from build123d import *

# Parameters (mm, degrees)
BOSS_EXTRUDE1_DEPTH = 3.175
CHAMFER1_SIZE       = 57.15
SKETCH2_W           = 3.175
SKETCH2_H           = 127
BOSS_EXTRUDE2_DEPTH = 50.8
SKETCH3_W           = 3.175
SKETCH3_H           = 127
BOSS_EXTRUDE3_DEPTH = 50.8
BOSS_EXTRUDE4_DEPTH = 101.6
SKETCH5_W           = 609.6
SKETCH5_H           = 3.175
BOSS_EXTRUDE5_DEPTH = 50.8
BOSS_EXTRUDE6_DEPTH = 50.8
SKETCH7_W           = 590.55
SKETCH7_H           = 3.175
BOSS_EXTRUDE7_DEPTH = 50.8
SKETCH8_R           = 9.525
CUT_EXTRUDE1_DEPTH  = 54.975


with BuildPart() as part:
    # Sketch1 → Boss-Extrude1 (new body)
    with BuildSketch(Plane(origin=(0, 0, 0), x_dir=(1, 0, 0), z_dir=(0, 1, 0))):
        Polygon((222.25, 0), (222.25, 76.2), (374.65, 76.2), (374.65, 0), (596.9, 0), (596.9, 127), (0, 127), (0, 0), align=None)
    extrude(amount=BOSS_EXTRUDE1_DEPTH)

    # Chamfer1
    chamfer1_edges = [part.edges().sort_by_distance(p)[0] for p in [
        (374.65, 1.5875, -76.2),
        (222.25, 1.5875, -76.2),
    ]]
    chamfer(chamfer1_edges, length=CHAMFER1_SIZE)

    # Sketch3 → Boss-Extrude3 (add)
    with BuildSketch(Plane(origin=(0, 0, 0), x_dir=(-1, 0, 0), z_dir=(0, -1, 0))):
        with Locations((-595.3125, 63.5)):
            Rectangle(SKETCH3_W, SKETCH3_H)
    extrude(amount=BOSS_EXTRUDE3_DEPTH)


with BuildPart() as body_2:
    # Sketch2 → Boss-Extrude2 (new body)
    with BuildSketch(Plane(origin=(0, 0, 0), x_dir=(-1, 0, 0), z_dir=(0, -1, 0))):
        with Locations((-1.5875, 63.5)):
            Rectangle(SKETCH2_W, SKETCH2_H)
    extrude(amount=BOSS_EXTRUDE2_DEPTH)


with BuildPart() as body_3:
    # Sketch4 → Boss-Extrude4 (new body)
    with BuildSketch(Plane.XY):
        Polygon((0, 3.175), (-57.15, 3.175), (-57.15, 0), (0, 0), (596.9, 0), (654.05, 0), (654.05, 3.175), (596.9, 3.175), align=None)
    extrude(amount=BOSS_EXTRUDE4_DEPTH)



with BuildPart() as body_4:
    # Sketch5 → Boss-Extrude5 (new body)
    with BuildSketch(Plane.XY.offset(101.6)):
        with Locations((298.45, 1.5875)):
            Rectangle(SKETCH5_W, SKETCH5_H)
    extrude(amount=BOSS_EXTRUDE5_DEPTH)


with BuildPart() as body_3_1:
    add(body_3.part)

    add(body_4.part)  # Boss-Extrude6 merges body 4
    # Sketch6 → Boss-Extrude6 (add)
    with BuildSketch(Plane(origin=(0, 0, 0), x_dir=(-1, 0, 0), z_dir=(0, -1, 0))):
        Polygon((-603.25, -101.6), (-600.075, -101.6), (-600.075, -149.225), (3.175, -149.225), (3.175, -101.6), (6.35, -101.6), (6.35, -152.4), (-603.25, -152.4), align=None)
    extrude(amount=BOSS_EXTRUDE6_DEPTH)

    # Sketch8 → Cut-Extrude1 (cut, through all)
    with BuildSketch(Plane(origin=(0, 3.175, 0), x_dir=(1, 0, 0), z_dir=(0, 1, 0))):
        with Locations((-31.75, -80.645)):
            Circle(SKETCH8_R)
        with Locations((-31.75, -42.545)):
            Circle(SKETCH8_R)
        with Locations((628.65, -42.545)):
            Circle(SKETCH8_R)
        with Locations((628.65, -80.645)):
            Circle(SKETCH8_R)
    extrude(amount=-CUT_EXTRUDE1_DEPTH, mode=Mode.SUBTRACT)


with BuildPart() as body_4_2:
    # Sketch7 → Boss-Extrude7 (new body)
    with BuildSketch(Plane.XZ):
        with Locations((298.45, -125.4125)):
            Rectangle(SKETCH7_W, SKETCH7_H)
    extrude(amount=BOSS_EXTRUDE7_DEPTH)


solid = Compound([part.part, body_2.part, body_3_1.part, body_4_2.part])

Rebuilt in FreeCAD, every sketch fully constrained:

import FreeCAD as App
import Part
import Sketcher
Q = App.Units.Quantity


def edges_at(feature, points):
    """Names of the edges that pass closest to the given points."""
    edges = feature.Shape.Edges
    near = lambda p: min(range(len(edges)), key=lambda i: edges[i].distToShape(Part.Vertex(*p))[0])
    return sorted({f"Edge{near(p) + 1}" for p in points})

doc = App.newDocument("Part")
body = doc.addObject("PartDesign::Body", "Body")

# Sketch on XZ plane
sketch1 = body.newObject("Sketcher::SketchObject", "Sketch")
sketch1.AttachmentSupport = (doc.getObject("XZ_Plane"), [""])
sketch1.MapMode = "FlatFace"
sketch1.addGeometry([
    Part.LineSegment(App.Vector(222, 0, 0), App.Vector(222, -76, 0)),  # 0
    Part.LineSegment(App.Vector(222, -76, 0), App.Vector(375, -76, 0)),  # 1
    Part.LineSegment(App.Vector(375, -76, 0), App.Vector(375, 0, 0)),  # 2
    Part.LineSegment(App.Vector(375, 0, 0), App.Vector(597, 0, 0)),  # 3
    Part.LineSegment(App.Vector(597, 0, 0), App.Vector(597, -127, 0)),  # 4
    Part.LineSegment(App.Vector(597, -127, 0), App.Vector(0, -127, 0)),  # 5
    Part.LineSegment(App.Vector(0, -127, 0), App.Vector(0, 0, 0)),  # 6
    Part.LineSegment(App.Vector(0, 0, 0), App.Vector(222, 0, 0)),  # 7
], False)
sketch1.addConstraint([
    Sketcher.Constraint("Coincident", 0, 2, 1, 1),
    Sketcher.Constraint("Coincident", 1, 2, 2, 1),
    Sketcher.Constraint("Coincident", 2, 2, 3, 1),
    Sketcher.Constraint("Coincident", 3, 2, 4, 1),
    Sketcher.Constraint("Coincident", 4, 2, 5, 1),
    Sketcher.Constraint("Coincident", 5, 2, 6, 1),
    Sketcher.Constraint("Coincident", 6, 2, 7, 1),
    Sketcher.Constraint("Coincident", 7, 2, 0, 1),
    Sketcher.Constraint("Vertical", 0),
    Sketcher.Constraint("Horizontal", 1),
    Sketcher.Constraint("Vertical", 2),
    Sketcher.Constraint("Horizontal", 3),
    Sketcher.Constraint("Vertical", 4),
    Sketcher.Constraint("Horizontal", 5),
    Sketcher.Constraint("Vertical", 6),
    Sketcher.Constraint("Horizontal", 7),
    Sketcher.Constraint("Coincident", 6, 2, -1, 1),
    Sketcher.Constraint("PointOnObject", 2, 2, -1),
    Sketcher.Constraint("Equal", 3, 7),
    Sketcher.Constraint("DistanceX", 1, 1, 1, 2, Q("6 in")),
    Sketcher.Constraint("DistanceY", 0, 2, 0, 1, Q("3 in")),
    Sketcher.Constraint("DistanceY", 4, 2, 4, 1, Q("5 in")),
    Sketcher.Constraint("DistanceX", 5, 2, 5, 1, Q("23.5 in")),
])
pad1 = body.newObject("PartDesign::Pad", "Pad")
pad1.Profile = sketch1
pad1.Length = Q("0.125 in")
pad1.Reversed = True
doc.recompute()

chamfer = body.newObject("PartDesign::Chamfer", "Chamfer")
chamfer.Base = (pad1, edges_at(pad1, [(374.65, 1.587, -76.2), (222.25, 1.587, -76.2)]))
chamfer.Size = Q("2.25 in")

# Sketch on XZ plane
sketch2 = body.newObject("Sketcher::SketchObject", "Sketch001")
sketch2.AttachmentSupport = (doc.getObject("XZ_Plane"), [""])
sketch2.MapMode = "FlatFace"
sketch2.addGeometry([
    Part.LineSegment(App.Vector(596.9, -127, 0), App.Vector(596.9, 0, 0)),
    Part.LineSegment(App.Vector(596.9, 0, 0), App.Vector(593.7, 0, 0)),
    Part.LineSegment(App.Vector(593.7, 0, 0), App.Vector(593.7, -127, 0)),
    Part.LineSegment(App.Vector(593.7, -127, 0), App.Vector(596.9, -127, 0)),
], False)
sketch2.addConstraint([
    Sketcher.Constraint("Coincident", 0, 2, 1, 1),
    Sketcher.Constraint("Coincident", 1, 2, 2, 1),
    Sketcher.Constraint("Coincident", 2, 2, 3, 1),
    Sketcher.Constraint("Coincident", 3, 2, 0, 1),
    Sketcher.Constraint("Vertical", 0),
    Sketcher.Constraint("Horizontal", 1),
    Sketcher.Constraint("Vertical", 2),
    Sketcher.Constraint("Horizontal", 3),
    Sketcher.Constraint("PointOnObject", 0, 2, -1),
    Sketcher.Constraint("DistanceY", 0, 1, 0, 2, Q("5 in")),
    Sketcher.Constraint("DistanceX", -1, 1, 0, 2, Q("23.5 in")),
    Sketcher.Constraint("DistanceX", 1, 2, 1, 1, Q("0.125 in")),
])
pad2 = body.newObject("PartDesign::Pad", "Pad001")
pad2.Profile = sketch2
pad2.Length = Q("2 in")
body2 = doc.addObject("PartDesign::Body", "Body001")

# Sketch on XZ plane
sketch3 = body2.newObject("Sketcher::SketchObject", "Sketch002")
sketch3.AttachmentSupport = (doc.getObject("XZ_Plane001"), [""])
sketch3.MapMode = "FlatFace"
sketch3.addGeometry([
    Part.LineSegment(App.Vector(3.2, -127, 0), App.Vector(3.2, 0, 0)),
    Part.LineSegment(App.Vector(3.2, 0, 0), App.Vector(0, 0, 0)),
    Part.LineSegment(App.Vector(0, 0, 0), App.Vector(0, -127, 0)),
    Part.LineSegment(App.Vector(0, -127, 0), App.Vector(3.2, -127, 0)),
], False)
sketch3.addConstraint([
    Sketcher.Constraint("Coincident", 0, 2, 1, 1),
    Sketcher.Constraint("Coincident", 1, 2, 2, 1),
    Sketcher.Constraint("Coincident", 2, 2, 3, 1),
    Sketcher.Constraint("Coincident", 3, 2, 0, 1),
    Sketcher.Constraint("Vertical", 0),
    Sketcher.Constraint("Horizontal", 1),
    Sketcher.Constraint("Vertical", 2),
    Sketcher.Constraint("Horizontal", 3),
    Sketcher.Constraint("Coincident", 1, 2, -1, 1),
    Sketcher.Constraint("DistanceY", 0, 1, 0, 2, Q("5 in")),
    Sketcher.Constraint("DistanceX", 1, 2, 1, 1, Q("0.125 in")),
])
pad3 = body2.newObject("PartDesign::Pad", "Pad002")
pad3.Profile = sketch3
pad3.Length = Q("2 in")
body3 = doc.addObject("PartDesign::Body", "Body002")

# Sketch on XY plane
sketch4 = body3.newObject("Sketcher::SketchObject", "Sketch003")
sketch4.AttachmentSupport = (doc.getObject("XY_Plane002"), [""])
sketch4.MapMode = "FlatFace"
sketch4.addGeometry([
    Part.LineSegment(App.Vector(-57.1, 3.2, 0), App.Vector(-57.1, 0, 0)),
    Part.LineSegment(App.Vector(-57.1, 0, 0), App.Vector(654, 0, 0)),
    Part.LineSegment(App.Vector(654, 0, 0), App.Vector(654, 3.2, 0)),
    Part.LineSegment(App.Vector(654, 3.2, 0), App.Vector(-57.1, 3.2, 0)),
], False)
sketch4.addConstraint([
    Sketcher.Constraint("Coincident", 0, 2, 1, 1),
    Sketcher.Constraint("Coincident", 1, 2, 2, 1),
    Sketcher.Constraint("Coincident", 2, 2, 3, 1),
    Sketcher.Constraint("Coincident", 3, 2, 0, 1),
    Sketcher.Constraint("Vertical", 0),
    Sketcher.Constraint("Horizontal", 1),
    Sketcher.Constraint("Vertical", 2),
    Sketcher.Constraint("Horizontal", 3),
    Sketcher.Constraint("PointOnObject", 0, 2, -1),
    Sketcher.Constraint("DistanceX", 1, 1, 1, 2, Q("28 in")),
    Sketcher.Constraint("DistanceY", 0, 2, 0, 1, Q("0.125 in")),
    Sketcher.Constraint("DistanceX", 0, 2, -1, 1, Q("2.25 in")),
])
pad4 = body3.newObject("PartDesign::Pad", "Pad003")
pad4.Profile = sketch4
pad4.Length = Q("4 in")
body4 = doc.addObject("PartDesign::Body", "Body003")

# Sketch on XY plane
sketch5 = body4.newObject("Sketcher::SketchObject", "Sketch004")
sketch5.AttachmentSupport = (doc.getObject("XY_Plane003"), [""])
sketch5.MapMode = "FlatFace"
sketch5.AttachmentOffset = App.Placement(App.Vector(0, 0, 4 * 25.4), App.Rotation())
sketch5.addGeometry([
    Part.LineSegment(App.Vector(-6.3, 3.2, 0), App.Vector(-6.3, 0, 0)),
    Part.LineSegment(App.Vector(-6.3, 0, 0), App.Vector(603.2, 0, 0)),
    Part.LineSegment(App.Vector(603.2, 0, 0), App.Vector(603.2, 3.2, 0)),
    Part.LineSegment(App.Vector(603.2, 3.2, 0), App.Vector(-6.3, 3.2, 0)),
], False)
sketch5.addConstraint([
    Sketcher.Constraint("Coincident", 0, 2, 1, 1),
    Sketcher.Constraint("Coincident", 1, 2, 2, 1),
    Sketcher.Constraint("Coincident", 2, 2, 3, 1),
    Sketcher.Constraint("Coincident", 3, 2, 0, 1),
    Sketcher.Constraint("Vertical", 0),
    Sketcher.Constraint("Horizontal", 1),
    Sketcher.Constraint("Vertical", 2),
    Sketcher.Constraint("Horizontal", 3),
    Sketcher.Constraint("PointOnObject", 0, 2, -1),
    Sketcher.Constraint("DistanceX", 1, 1, 1, 2, Q("24 in")),
    Sketcher.Constraint("DistanceY", 0, 2, 0, 1, Q("0.125 in")),
    Sketcher.Constraint("DistanceX", 0, 2, -1, 1, Q("0.25 in")),
])
pad5 = body4.newObject("PartDesign::Pad", "Pad004")
pad5.Profile = sketch5
pad5.Length = Q("2 in")
doc.recompute()

boolean = body3.newObject("PartDesign::Boolean", "Boolean")
boolean.Type = "Fuse"
boolean.addObjects([body4])

# Sketch on XZ plane
sketch6 = body3.newObject("Sketcher::SketchObject", "Sketch005")
sketch6.AttachmentSupport = (doc.getObject("XZ_Plane002"), [""])
sketch6.MapMode = "FlatFace"
sketch6.addGeometry([
    Part.LineSegment(App.Vector(600.1, 101.6, 0), App.Vector(603.2, 101.6, 0)),  # 0
    Part.LineSegment(App.Vector(603.2, 101.6, 0), App.Vector(603.2, 152.4, 0)),  # 1
    Part.LineSegment(App.Vector(603.2, 152.4, 0), App.Vector(-6.3, 152.4, 0)),  # 2
    Part.LineSegment(App.Vector(-6.3, 152.4, 0), App.Vector(-6.3, 101.6, 0)),  # 3
    Part.LineSegment(App.Vector(-6.3, 101.6, 0), App.Vector(-3.2, 101.6, 0)),  # 4
    Part.LineSegment(App.Vector(-3.2, 101.6, 0), App.Vector(-3.2, 149.2, 0)),  # 5
    Part.LineSegment(App.Vector(-3.2, 149.2, 0), App.Vector(600.1, 149.2, 0)),  # 6
    Part.LineSegment(App.Vector(600.1, 149.2, 0), App.Vector(600.1, 101.6, 0)),  # 7
], False)
sketch6.addConstraint([
    Sketcher.Constraint("Coincident", 0, 2, 1, 1),
    Sketcher.Constraint("Coincident", 1, 2, 2, 1),
    Sketcher.Constraint("Coincident", 2, 2, 3, 1),
    Sketcher.Constraint("Coincident", 3, 2, 4, 1),
    Sketcher.Constraint("Coincident", 4, 2, 5, 1),
    Sketcher.Constraint("Coincident", 5, 2, 6, 1),
    Sketcher.Constraint("Coincident", 6, 2, 7, 1),
    Sketcher.Constraint("Coincident", 7, 2, 0, 1),
    Sketcher.Constraint("Horizontal", 0),
    Sketcher.Constraint("Vertical", 1),
    Sketcher.Constraint("Horizontal", 2),
    Sketcher.Constraint("Vertical", 3),
    Sketcher.Constraint("Horizontal", 4),
    Sketcher.Constraint("Vertical", 5),
    Sketcher.Constraint("Horizontal", 6),
    Sketcher.Constraint("Vertical", 7),
    Sketcher.Constraint("Horizontal", 0, 2, 3, 2),
    Sketcher.Constraint("Equal", 0, 4),
    Sketcher.Constraint("DistanceX", 2, 2, 2, 1, Q("24 in")),
    Sketcher.Constraint("DistanceY", 1, 1, 1, 2, Q("2 in")),
    Sketcher.Constraint("DistanceY", -1, 1, 0, 2, Q("4 in")),
    Sketcher.Constraint("DistanceX", 6, 1, 6, 2, Q("23.75 in")),
    Sketcher.Constraint("DistanceY", 5, 1, 5, 2, Q("1.875 in")),
    Sketcher.Constraint("DistanceX", -1, 1, 0, 2, Q("23.75 in")),
])
pad6 = body3.newObject("PartDesign::Pad", "Pad005")
pad6.Profile = sketch6
pad6.Length = Q("2 in")

# Sketch on XZ plane
sketch7 = body3.newObject("Sketcher::SketchObject", "Sketch006")
sketch7.AttachmentSupport = (doc.getObject("XZ_Plane002"), [""])
sketch7.MapMode = "FlatFace"
sketch7.AttachmentOffset = App.Placement(App.Vector(0, 0, -0.125 * 25.4), App.Rotation())
sketch7.addGeometry([
    Part.Circle(App.Vector(-32, 81, 0), App.Vector(0, 0, 1), 10),
    Part.Circle(App.Vector(-32, 43, 0), App.Vector(0, 0, 1), 10),
    Part.Circle(App.Vector(629, 43, 0), App.Vector(0, 0, 1), 10),
    Part.Circle(App.Vector(629, 81, 0), App.Vector(0, 0, 1), 10),
], False)
sketch7.addConstraint([
    Sketcher.Constraint("Equal", 0, 1),
    Sketcher.Constraint("Equal", 1, 2),
    Sketcher.Constraint("Equal", 2, 3),
    Sketcher.Constraint("Horizontal", 1, 3, 2, 3),
    Sketcher.Constraint("Horizontal", 0, 3, 3, 3),
    Sketcher.Constraint("Vertical", 0, 3, 1, 3),
    Sketcher.Constraint("Vertical", 2, 3, 3, 3),
    Sketcher.Constraint("Diameter", 0, Q("0.75 in")),
    Sketcher.Constraint("DistanceX", 1, 3, 2, 3, Q("26 in")),
    Sketcher.Constraint("DistanceY", 1, 3, 0, 3, Q("1.5 in")),
    Sketcher.Constraint("DistanceX", 0, 3, -1, 1, Q("1.25 in")),
    Sketcher.Constraint("DistanceY", -1, 1, 0, 3, Q("3.175 in")),
])
pocket1 = body3.newObject("PartDesign::Pocket", "Pocket")
pocket1.Profile = sketch7
pocket1.Type = "ThroughAll"
pocket1.Reversed = True
body5 = doc.addObject("PartDesign::Body", "Body004")

# Sketch on XZ plane
sketch8 = body5.newObject("Sketcher::SketchObject", "Sketch007")
sketch8.AttachmentSupport = (doc.getObject("XZ_Plane004"), [""])
sketch8.MapMode = "FlatFace"
sketch8.addGeometry([
    Part.LineSegment(App.Vector(3.2, -123.8, 0), App.Vector(3.2, -127, 0)),
    Part.LineSegment(App.Vector(3.2, -127, 0), App.Vector(593.7, -127, 0)),
    Part.LineSegment(App.Vector(593.7, -127, 0), App.Vector(593.7, -123.8, 0)),
    Part.LineSegment(App.Vector(593.7, -123.8, 0), App.Vector(3.2, -123.8, 0)),
], False)
sketch8.addConstraint([
    Sketcher.Constraint("Coincident", 0, 2, 1, 1),
    Sketcher.Constraint("Coincident", 1, 2, 2, 1),
    Sketcher.Constraint("Coincident", 2, 2, 3, 1),
    Sketcher.Constraint("Coincident", 3, 2, 0, 1),
    Sketcher.Constraint("Vertical", 0),
    Sketcher.Constraint("Horizontal", 1),
    Sketcher.Constraint("Vertical", 2),
    Sketcher.Constraint("Horizontal", 3),
    Sketcher.Constraint("DistanceY", 0, 2, -1, 1, Q("5 in")),
    Sketcher.Constraint("DistanceX", 1, 1, 1, 2, Q("23.25 in")),
    Sketcher.Constraint("DistanceY", 0, 2, 0, 1, Q("0.125 in")),
    Sketcher.Constraint("DistanceX", -1, 1, 0, 2, Q("0.125 in")),
])
pad7 = body5.newObject("PartDesign::Pad", "Pad006")
pad7.Profile = sketch8
pad7.Length = Q("2 in")

doc.recompute()
